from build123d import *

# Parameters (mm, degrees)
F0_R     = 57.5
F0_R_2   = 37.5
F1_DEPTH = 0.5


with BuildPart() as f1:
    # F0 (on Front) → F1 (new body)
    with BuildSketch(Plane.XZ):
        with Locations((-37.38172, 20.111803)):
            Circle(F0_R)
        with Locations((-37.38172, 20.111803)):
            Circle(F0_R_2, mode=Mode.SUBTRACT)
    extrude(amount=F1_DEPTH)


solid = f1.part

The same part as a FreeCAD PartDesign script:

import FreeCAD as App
import Part
import Sketcher

V = App.Vector

doc = App.newDocument("Part")
body = doc.addObject("PartDesign::Body", "Body")

sketch1 = body.newObject("Sketcher::SketchObject", "Sketch")
sketch1.AttachmentSupport = (doc.getObject("XZ_Plane"), [""])
sketch1.MapMode = "FlatFace"
sketch1.addGeometry(Part.Circle(V(-37, 20, 0), V(0, 0, 1), 58), False)
sketch1.addGeometry(Part.Circle(V(-37, 20, 0), V(0, 0, 1), 38), False)
sketch1.addConstraint(Sketcher.Constraint("Coincident", 1, 3, 0, 3))
sketch1.addConstraint(Sketcher.Constraint("Diameter", 0, 115.0))
sketch1.addConstraint(Sketcher.Constraint("Diameter", 1, 75.0))
sketch1.addConstraint(Sketcher.Constraint("DistanceX", 0, 3, -1, 1, 37.38172))
sketch1.addConstraint(Sketcher.Constraint("DistanceY", -1, 1, 0, 3, 20.111803))
pad1 = body.newObject("PartDesign::Pad", "Pad")
pad1.Profile = sketch1
pad1.Length = 0.5

doc.recompute()
